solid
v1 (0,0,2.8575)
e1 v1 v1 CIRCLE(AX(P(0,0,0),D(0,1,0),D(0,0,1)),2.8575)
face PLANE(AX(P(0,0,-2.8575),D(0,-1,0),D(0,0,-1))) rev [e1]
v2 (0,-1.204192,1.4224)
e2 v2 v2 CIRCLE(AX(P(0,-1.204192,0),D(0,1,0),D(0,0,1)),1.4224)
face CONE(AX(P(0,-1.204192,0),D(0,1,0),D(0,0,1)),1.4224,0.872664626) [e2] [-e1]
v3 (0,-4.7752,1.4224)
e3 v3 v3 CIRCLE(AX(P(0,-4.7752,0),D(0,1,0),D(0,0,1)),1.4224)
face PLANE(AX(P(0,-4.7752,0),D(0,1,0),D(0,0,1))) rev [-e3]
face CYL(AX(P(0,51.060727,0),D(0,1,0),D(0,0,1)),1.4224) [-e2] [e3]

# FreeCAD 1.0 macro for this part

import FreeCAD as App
import Part
import Sketcher
from FreeCAD import Vector
Q = App.Units.Quantity

doc = App.newDocument("Part")
body = doc.addObject("PartDesign::Body", "Body")

# Sketch on YZ plane
sketch1 = body.newObject("Sketcher::SketchObject", "Sketch")
sketch1.AttachmentSupport = (doc.getObject("YZ_Plane"), [""])
sketch1.MapMode = "FlatFace"
sketch1.addGeometry(Part.LineSegment(Vector(0, 0, 0), Vector(-4.7752, 0, 0)), False)
sketch1.addGeometry(Part.LineSegment(Vector(-4.7752, 0, 0), Vector(-4.7752, -1.4224, 0)), False)
sketch1.addGeometry(Part.LineSegment(Vector(-4.7752, -1.4224, 0), Vector(-1.204192, -1.4224, 0)), False)
sketch1.addGeometry(Part.LineSegment(Vector(-1.204192, -1.4224, 0), Vector(0, -2.8575, 0)), False)
sketch1.addGeometry(Part.LineSegment(Vector(0, -2.8575, 0), Vector(0, 0, 0)), False)
sketch1.addConstraint(Sketcher.Constraint("Coincident", 0, 2, 1, 1))
sketch1.addConstraint(Sketcher.Constraint("Coincident", 1, 2, 2, 1))
sketch1.addConstraint(Sketcher.Constraint("Coincident", 2, 2, 3, 1))
sketch1.addConstraint(Sketcher.Constraint("Coincident", 3, 2, 4, 1))
sketch1.addConstraint(Sketcher.Constraint("Coincident", 4, 2, 0, 1))
sketch1.addConstraint(Sketcher.Constraint("Horizontal", 0))
sketch1.addConstraint(Sketcher.Constraint("Vertical", 1))
sketch1.addConstraint(Sketcher.Constraint("Horizontal", 2))
sketch1.addConstraint(Sketcher.Constraint("Vertical", 4))
sketch1.addConstraint(Sketcher.Constraint("Coincident", 4, 2, -1, 1))
sketch1.addConstraint(Sketcher.Constraint("Angle", 3, Q("-50 deg")))
sketch1.addConstraint(Sketcher.Constraint("DistanceX", 0, 2, 0, 1, Q("0.188 in")))
sketch1.addConstraint(Sketcher.Constraint("DistanceY", 1, 2, 1, 1, Q("0.056 in")))
sketch1.addConstraint(Sketcher.Constraint("DistanceY", 4, 1, 4, 2, Q("0.1125 in")))
revolution = body.newObject("PartDesign::Revolution", "Revolution")
revolution.Profile = sketch1
revolution.ReferenceAxis = (sketch1, ["H_Axis"])
revolution.Angle = 360

doc.recompute()
